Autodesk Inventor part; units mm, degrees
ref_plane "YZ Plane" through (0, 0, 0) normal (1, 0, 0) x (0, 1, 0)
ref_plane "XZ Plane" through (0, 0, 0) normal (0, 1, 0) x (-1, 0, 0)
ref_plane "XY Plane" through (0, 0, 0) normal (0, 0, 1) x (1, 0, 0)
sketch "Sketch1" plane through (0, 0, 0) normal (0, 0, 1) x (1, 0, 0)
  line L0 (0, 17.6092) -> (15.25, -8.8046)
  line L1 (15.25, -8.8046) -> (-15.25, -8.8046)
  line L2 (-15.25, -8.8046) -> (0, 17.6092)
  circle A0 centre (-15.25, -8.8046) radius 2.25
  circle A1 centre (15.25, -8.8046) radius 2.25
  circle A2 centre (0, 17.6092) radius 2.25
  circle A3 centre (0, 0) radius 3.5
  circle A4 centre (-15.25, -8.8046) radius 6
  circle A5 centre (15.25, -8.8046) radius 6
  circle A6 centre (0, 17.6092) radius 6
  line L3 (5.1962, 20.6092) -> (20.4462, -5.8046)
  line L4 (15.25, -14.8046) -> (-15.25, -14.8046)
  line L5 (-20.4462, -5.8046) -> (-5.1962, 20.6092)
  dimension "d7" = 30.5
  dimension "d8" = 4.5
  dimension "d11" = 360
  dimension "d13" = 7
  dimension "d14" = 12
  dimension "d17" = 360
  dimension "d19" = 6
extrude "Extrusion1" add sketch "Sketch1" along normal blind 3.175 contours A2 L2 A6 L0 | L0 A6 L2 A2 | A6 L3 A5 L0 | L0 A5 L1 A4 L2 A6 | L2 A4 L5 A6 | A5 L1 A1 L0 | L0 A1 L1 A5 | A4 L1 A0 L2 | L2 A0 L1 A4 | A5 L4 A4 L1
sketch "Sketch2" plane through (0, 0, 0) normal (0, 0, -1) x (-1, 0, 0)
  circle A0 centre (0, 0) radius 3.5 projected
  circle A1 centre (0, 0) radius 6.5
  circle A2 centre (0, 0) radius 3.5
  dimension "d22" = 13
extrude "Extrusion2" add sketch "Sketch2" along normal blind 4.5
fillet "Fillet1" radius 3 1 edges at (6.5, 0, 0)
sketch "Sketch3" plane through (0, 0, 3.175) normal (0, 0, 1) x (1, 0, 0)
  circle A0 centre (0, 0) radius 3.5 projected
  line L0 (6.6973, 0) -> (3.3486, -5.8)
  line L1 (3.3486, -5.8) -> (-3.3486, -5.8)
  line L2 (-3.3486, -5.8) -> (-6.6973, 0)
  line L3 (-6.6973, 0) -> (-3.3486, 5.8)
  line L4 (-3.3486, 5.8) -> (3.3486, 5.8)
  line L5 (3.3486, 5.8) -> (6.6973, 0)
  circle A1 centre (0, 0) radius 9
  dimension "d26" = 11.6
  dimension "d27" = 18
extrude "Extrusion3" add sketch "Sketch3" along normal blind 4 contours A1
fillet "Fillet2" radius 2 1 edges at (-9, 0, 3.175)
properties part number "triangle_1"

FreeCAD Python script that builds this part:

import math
import FreeCAD as App
import Part
import Sketcher

V = App.Vector
Q = App.Units.Quantity


def edges_at(feature, points):
    """Names of the edges that pass closest to the given points."""
    edges = feature.Shape.Edges
    near = lambda p: min(range(len(edges)), key=lambda i: edges[i].distToShape(Part.Vertex(*p))[0])
    return sorted({f"Edge{near(p) + 1}" for p in points})


def add_polygon(sketch, points):
    """Adds a closed chain of lines whose ends are joined by coincident constraints."""
    first, n = sketch.GeometryCount, len(points)
    for a, b in zip(points, points[1:] + points[:1]):
        sketch.addGeometry(Part.LineSegment(App.Vector(*a, 0), App.Vector(*b, 0)), False)
    for i in range(n):
        sketch.addConstraint(Sketcher.Constraint("Coincident", first + i, 2, first + (i + 1) % n, 1))

doc = App.newDocument("Part")
body = doc.addObject("PartDesign::Body", "Body")

# Sketch on XY plane
sketch1 = body.newObject("Sketcher::SketchObject", "Sketch")
sketch1.AttachmentSupport = (doc.getObject("XY_Plane"), [""])
sketch1.MapMode = "FlatFace"
sketch1.addGeometry([
    Part.ArcOfCircle(Part.Circle(V(0, 17.6, 0), V(0, 0, 1), 6), math.radians(30), math.radians(150)),  # 0
    Part.LineSegment(V(-5.2, 20.6, 0), V(-20.4, -5.8, 0)),  # 1
    Part.ArcOfCircle(Part.Circle(V(-15.2, -8.8, 0), V(0, 0, 1), 6), math.radians(150), math.radians(270)),  # 2
    Part.LineSegment(V(-15.2, -14.8, 0), V(15.2, -14.8, 0)),  # 3
    Part.ArcOfCircle(Part.Circle(V(15.2, -8.8, 0), V(0, 0, 1), 6), math.radians(-90), math.radians(30)),  # 4
    Part.LineSegment(V(20.4, -5.8, 0), V(5.2, 20.6, 0)),  # 5
    Part.Circle(V(0, 17.6, 0), V(0, 0, 1), 2.2),  # 6
    Part.Circle(V(0, 0, 0), V(0, 0, 1), 3.5),  # 7
    Part.Circle(V(-15.2, -8.8, 0), V(0, 0, 1), 2.2),  # 8
    Part.Circle(V(15.2, -8.8, 0), V(0, 0, 1), 2.2),  # 9
], False)
sketch1.addConstraint([
    Sketcher.Constraint("Tangent", 0, 2, 1, 1),
    Sketcher.Constraint("Tangent", 1, 2, 2, 1),
    Sketcher.Constraint("Tangent", 2, 2, 3, 1),
    Sketcher.Constraint("Tangent", 3, 2, 4, 1),
    Sketcher.Constraint("Tangent", 4, 2, 5, 1),
    Sketcher.Constraint("Tangent", 5, 2, 0, 1),
    Sketcher.Constraint("Horizontal", 3),
    Sketcher.Constraint("Coincident", 7, 3, -1, 1),
    Sketcher.Constraint("Coincident", 6, 3, 0, 3),
    Sketcher.Constraint("Coincident", 8, 3, 2, 3),
    Sketcher.Constraint("Coincident", 9, 3, 4, 3),
    Sketcher.Constraint("Equal", 0, 2),
    Sketcher.Constraint("Equal", 2, 4),
    Sketcher.Constraint("Equal", 6, 8),
    Sketcher.Constraint("Equal", 8, 9),
    Sketcher.Constraint("Symmetric", 1, 2, 4, 2, -2),
    Sketcher.Constraint("Diameter", 7, 7.0),
    Sketcher.Constraint("Radius", 0, 6.0),
    Sketcher.Constraint("Diameter", 6, 4.5),
    Sketcher.Constraint("DistanceX", 3, 1, 3, 2, 30.5),
    Sketcher.Constraint("Distance", 1, 30.5),
    Sketcher.Constraint("DistanceY", -1, 1, 0, 3, 17.6092),
])
pad1 = body.newObject("PartDesign::Pad", "Pad")
pad1.Profile = sketch1
pad1.Length = 3.175

# Sketch on XY plane
sketch2 = body.newObject("Sketcher::SketchObject", "Sketch001")
sketch2.AttachmentSupport = (doc.getObject("XY_Plane"), [""])
sketch2.MapMode = "FlatFace"
sketch2.addGeometry([
    Part.Circle(V(0, 0, 0), V(0, 0, 1), 6.5),
    Part.Circle(V(0, 0, 0), V(0, 0, 1), 3.5),
], False)
sketch2.addConstraint([
    Sketcher.Constraint("Coincident", 0, 3, -1, 1),
    Sketcher.Constraint("Coincident", 1, 3, -1, 1),
    Sketcher.Constraint("Diameter", 0, 13.0),
    Sketcher.Constraint("Diameter", 1, 7.0),
])
pad2 = body.newObject("PartDesign::Pad", "Pad001")
pad2.Profile = sketch2
pad2.Length = 4.5
pad2.Reversed = True
doc.recompute()

fillet = body.newObject("PartDesign::Fillet", "Fillet")
fillet.Base = (pad2, edges_at(pad2, [(6.5, 0, 0)]))
fillet.Radius = 3

# Sketch on XY plane
sketch3 = body.newObject("Sketcher::SketchObject", "Sketch002")
sketch3.AttachmentSupport = (doc.getObject("XY_Plane"), [""])
sketch3.MapMode = "FlatFace"
sketch3.AttachmentOffset = App.Placement(V(0, 0, 3.175), App.Rotation())
sketch3.addGeometry(Part.Circle(V(0, 0, 0), V(0, 0, 1), 9), False)  # 0
add_polygon(sketch3, [(3, 6), (7, 0), (3, -6), (-3, -6), (-7, 0), (-3, 6)])  # lines 1-6
sketch3.addConstraint([
    Sketcher.Constraint("Horizontal", 3),
    Sketcher.Constraint("Horizontal", 6),
    Sketcher.Constraint("Coincident", 0, 3, -1, 1),
    Sketcher.Constraint("Symmetric", 1, 2, 4, 2, -1, 1),
    Sketcher.Constraint("Symmetric", 2, 2, 5, 2, -1, 1),
    Sketcher.Constraint("PointOnObject", 1, 2, -1),
    Sketcher.Constraint("Parallel", 1, 4),
    Sketcher.Constraint("Vertical", 3, 2, 5, 2),
    Sketcher.Constraint("Diameter", 0, 18.0),
    Sketcher.Constraint("DistanceY", 3, 2, 5, 2, 11.6),
    Sketcher.Constraint("Angle", 1, Q("-59.9995 deg")),
    Sketcher.Constraint("DistanceX", 3, 2, 3, 1, 6.6972),
])
pad3 = body.newObject("PartDesign::Pad", "Pad002")
pad3.Profile = sketch3
pad3.Length = 4
doc.recompute()

fillet2 = body.newObject("PartDesign::Fillet", "Fillet001")
fillet2.Base = (pad3, edges_at(pad3, [(-9, 0, 3.175)]))
fillet2.Radius = 2

doc.recompute()
